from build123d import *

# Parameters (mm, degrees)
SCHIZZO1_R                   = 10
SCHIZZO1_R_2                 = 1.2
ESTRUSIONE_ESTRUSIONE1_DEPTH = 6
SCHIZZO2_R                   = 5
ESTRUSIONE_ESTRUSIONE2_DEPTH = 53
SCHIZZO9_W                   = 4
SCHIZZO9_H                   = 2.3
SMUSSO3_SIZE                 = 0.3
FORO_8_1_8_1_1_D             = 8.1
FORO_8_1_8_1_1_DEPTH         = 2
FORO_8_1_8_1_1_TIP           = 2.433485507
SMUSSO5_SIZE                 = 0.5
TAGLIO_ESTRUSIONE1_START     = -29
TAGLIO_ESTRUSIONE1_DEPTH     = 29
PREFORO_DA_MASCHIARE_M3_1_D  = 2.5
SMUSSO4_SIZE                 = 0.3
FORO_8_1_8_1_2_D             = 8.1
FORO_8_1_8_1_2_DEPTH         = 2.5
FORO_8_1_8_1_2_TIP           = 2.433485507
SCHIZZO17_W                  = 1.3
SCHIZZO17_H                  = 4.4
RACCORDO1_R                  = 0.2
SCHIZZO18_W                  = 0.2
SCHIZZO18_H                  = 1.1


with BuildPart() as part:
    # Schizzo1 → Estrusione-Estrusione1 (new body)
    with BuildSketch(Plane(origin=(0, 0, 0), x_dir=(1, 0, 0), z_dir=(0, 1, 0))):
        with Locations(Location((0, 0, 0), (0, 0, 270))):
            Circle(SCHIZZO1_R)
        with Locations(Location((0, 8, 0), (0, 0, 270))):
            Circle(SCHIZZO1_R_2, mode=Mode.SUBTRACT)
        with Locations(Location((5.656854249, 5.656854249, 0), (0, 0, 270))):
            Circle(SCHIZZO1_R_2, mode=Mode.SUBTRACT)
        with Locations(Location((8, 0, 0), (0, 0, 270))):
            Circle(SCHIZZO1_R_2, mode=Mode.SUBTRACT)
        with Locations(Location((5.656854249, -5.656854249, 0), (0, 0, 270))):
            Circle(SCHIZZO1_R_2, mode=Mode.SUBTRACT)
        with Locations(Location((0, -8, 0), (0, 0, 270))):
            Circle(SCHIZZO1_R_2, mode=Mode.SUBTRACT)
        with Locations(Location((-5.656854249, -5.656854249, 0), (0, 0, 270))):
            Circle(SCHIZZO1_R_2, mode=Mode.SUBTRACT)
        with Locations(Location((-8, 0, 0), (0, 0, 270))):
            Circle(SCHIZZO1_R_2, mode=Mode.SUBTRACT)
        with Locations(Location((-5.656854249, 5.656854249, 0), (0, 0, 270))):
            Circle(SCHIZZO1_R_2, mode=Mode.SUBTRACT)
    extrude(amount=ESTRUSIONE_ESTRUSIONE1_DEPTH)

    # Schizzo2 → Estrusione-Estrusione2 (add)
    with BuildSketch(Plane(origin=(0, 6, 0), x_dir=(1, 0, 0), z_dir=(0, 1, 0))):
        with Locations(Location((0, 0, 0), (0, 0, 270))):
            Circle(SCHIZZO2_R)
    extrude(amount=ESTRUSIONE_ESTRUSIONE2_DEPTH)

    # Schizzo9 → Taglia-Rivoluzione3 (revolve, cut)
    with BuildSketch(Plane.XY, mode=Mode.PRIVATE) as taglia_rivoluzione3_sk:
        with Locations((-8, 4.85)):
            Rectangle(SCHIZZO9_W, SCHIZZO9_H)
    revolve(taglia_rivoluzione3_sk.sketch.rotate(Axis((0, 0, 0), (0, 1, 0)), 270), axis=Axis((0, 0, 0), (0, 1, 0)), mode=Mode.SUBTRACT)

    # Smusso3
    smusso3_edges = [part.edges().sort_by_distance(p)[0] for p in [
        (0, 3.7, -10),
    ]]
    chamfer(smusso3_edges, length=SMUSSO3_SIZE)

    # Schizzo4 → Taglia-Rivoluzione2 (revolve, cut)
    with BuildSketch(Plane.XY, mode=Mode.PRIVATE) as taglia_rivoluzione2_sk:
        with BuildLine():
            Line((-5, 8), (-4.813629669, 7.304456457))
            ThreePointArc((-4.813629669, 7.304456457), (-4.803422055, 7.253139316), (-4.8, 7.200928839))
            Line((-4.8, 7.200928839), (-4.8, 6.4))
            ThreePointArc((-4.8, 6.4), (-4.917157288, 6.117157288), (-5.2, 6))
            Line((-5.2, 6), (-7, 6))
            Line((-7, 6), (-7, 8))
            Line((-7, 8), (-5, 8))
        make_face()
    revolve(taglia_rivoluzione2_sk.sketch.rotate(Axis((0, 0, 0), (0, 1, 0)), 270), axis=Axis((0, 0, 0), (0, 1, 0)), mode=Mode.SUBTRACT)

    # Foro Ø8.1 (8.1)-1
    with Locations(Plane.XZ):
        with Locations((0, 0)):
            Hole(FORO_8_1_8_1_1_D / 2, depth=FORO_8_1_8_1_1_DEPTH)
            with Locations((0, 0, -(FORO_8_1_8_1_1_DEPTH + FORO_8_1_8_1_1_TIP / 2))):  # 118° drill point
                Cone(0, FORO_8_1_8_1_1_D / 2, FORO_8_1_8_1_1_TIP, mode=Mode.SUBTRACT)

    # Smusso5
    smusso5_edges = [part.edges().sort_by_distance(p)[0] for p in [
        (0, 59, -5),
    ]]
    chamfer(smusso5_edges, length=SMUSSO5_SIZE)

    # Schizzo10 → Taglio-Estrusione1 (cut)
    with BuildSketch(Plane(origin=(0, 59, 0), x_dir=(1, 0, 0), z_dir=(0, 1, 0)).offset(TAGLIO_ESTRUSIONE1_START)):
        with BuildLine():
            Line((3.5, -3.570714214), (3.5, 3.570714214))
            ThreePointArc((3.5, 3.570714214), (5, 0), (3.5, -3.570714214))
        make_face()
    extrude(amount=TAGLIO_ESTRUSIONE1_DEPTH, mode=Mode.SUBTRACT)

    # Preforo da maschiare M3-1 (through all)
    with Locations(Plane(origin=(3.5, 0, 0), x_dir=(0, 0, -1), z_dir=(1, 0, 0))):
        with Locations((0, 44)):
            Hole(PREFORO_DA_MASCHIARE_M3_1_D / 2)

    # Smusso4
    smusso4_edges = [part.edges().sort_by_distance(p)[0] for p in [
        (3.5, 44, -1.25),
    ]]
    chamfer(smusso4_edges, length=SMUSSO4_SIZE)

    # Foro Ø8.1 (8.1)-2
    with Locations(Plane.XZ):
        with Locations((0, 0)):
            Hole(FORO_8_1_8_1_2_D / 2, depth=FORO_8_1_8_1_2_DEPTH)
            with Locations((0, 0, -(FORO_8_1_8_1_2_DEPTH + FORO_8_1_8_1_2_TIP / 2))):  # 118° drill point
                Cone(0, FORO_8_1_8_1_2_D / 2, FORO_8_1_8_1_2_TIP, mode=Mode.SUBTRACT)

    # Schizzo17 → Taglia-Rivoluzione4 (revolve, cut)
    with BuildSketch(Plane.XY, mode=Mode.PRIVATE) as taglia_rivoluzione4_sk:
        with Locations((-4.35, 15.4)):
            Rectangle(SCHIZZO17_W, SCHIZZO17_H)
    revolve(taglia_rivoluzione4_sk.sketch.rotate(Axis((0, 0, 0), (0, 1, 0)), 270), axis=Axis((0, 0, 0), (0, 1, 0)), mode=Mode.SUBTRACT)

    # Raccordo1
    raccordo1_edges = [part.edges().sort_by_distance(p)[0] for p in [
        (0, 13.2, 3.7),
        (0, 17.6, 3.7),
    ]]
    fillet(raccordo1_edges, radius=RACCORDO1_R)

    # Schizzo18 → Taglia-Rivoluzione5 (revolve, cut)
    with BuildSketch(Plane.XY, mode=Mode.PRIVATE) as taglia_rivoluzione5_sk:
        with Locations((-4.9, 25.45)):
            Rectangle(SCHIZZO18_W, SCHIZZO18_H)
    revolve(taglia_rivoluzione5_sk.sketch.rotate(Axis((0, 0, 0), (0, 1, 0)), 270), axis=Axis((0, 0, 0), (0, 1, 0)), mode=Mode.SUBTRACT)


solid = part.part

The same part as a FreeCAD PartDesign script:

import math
import FreeCAD as App
import Part
import Sketcher
from FreeCAD import Vector
Q = App.Units.Quantity


def edges_at(feature, points):
    """Names of the edges that pass closest to the given points."""
    edges = feature.Shape.Edges
    near = lambda p: min(range(len(edges)), key=lambda i: edges[i].distToShape(Part.Vertex(*p))[0])
    return sorted({f"Edge{near(p) + 1}" for p in points})

doc = App.newDocument("Part")
body = doc.addObject("PartDesign::Body", "Body")

sketch1 = doc.addObject("Sketcher::SketchObject", "Sketch")
body.addObject(sketch1)
sketch1.AttachmentSupport = (doc.XZ_Plane, [""])
sketch1.MapMode = "FlatFace"
sketch1.addGeometry([
    Part.Circle(Vector(0, 0, 0), Vector(0, 0, 1), 10),
    Part.Circle(Vector(-5.7, -5.7, 0), Vector(0, 0, 1), 1.2),
    Part.Circle(Vector(0, -8, 0), Vector(0, 0, 1), 1.2),
    Part.Circle(Vector(-8, 0, 0), Vector(0, 0, 1), 1.2),
    Part.Circle(Vector(-5.7, 5.7, 0), Vector(0, 0, 1), 1.2),
    Part.Circle(Vector(5.7, -5.7, 0), Vector(0, 0, 1), 1.2),
    Part.Circle(Vector(8, 0, 0), Vector(0, 0, 1), 1.2),
    Part.Circle(Vector(0, 8, 0), Vector(0, 0, 1), 1.2),
    Part.Circle(Vector(5.7, 5.7, 0), Vector(0, 0, 1), 1.2),
], False)
sketch1.addConstraint([
    Sketcher.Constraint("Coincident", 0, 3, -1, 1),
    Sketcher.Constraint("Equal", 1, 2),
    Sketcher.Constraint("Equal", 2, 3),
    Sketcher.Constraint("Equal", 3, 4),
    Sketcher.Constraint("Equal", 4, 5),
    Sketcher.Constraint("Equal", 5, 6),
    Sketcher.Constraint("Equal", 6, 7),
    Sketcher.Constraint("Equal", 7, 8),
    Sketcher.Constraint("Symmetric", 4, 3, 5, 3, -1, 1),
    Sketcher.Constraint("Symmetric", 3, 3, 6, 3, -1, 1),
    Sketcher.Constraint("Symmetric", 2, 3, 7, 3, -1, 1),
    Sketcher.Constraint("Symmetric", 1, 3, 8, 3, -1, 1),
    Sketcher.Constraint("Symmetric", 1, 3, 5, 3, -2),
    Sketcher.Constraint("PointOnObject", 2, 3, -2),
    Sketcher.Constraint("PointOnObject", 3, 3, -1),
    Sketcher.Constraint("Diameter", 0, 20.0),
    Sketcher.Constraint("Diameter", 1, 2.4),
    Sketcher.Constraint("DistanceY", 2, 3, -1, 1, 8.0),
    Sketcher.Constraint("DistanceX", 3, 3, -1, 1, 8.0),
    Sketcher.Constraint("DistanceY", 1, 3, 4, 3, 11.313708),
    Sketcher.Constraint("DistanceX", 1, 3, 5, 3, 11.313708),
])
pad1 = doc.addObject("PartDesign::Pad", "Pad")
body.addObject(pad1)
pad1.Profile = sketch1
pad1.Length = 6
pad1.Reversed = True

sketch2 = doc.addObject("Sketcher::SketchObject", "Sketch001")
body.addObject(sketch2)
sketch2.AttachmentSupport = (doc.XZ_Plane, [""])
sketch2.MapMode = "FlatFace"
sketch2.AttachmentOffset = App.Placement(Vector(0, 0, -6), App.Rotation())
sketch2.addGeometry(Part.Circle(Vector(0, 0, 0), Vector(0, 0, 1), 5), False)
sketch2.addConstraint([
    Sketcher.Constraint("Coincident", 0, 3, -1, 1),
    Sketcher.Constraint("Diameter", 0, 10.0),
])
pad2 = doc.addObject("PartDesign::Pad", "Pad001")
body.addObject(pad2)
pad2.Profile = sketch2
pad2.Length = 53
pad2.Reversed = True

sketch3 = doc.addObject("Sketcher::SketchObject", "Sketch002")
body.addObject(sketch3)
sketch3.AttachmentSupport = (doc.XY_Plane, [""])
sketch3.MapMode = "FlatFace"
sketch3.addGeometry([
    Part.LineSegment(Vector(-10, 6, 0), Vector(-10, 3.7, 0)),
    Part.LineSegment(Vector(-10, 3.7, 0), Vector(-6, 3.7, 0)),
    Part.LineSegment(Vector(-6, 3.7, 0), Vector(-6, 6, 0)),
    Part.LineSegment(Vector(-6, 6, 0), Vector(-10, 6, 0)),
], False)
sketch3.addConstraint([
    Sketcher.Constraint("Coincident", 0, 2, 1, 1),
    Sketcher.Constraint("Coincident", 1, 2, 2, 1),
    Sketcher.Constraint("Coincident", 2, 2, 3, 1),
    Sketcher.Constraint("Coincident", 3, 2, 0, 1),
    Sketcher.Constraint("Vertical", 0),
    Sketcher.Constraint("Horizontal", 1),
    Sketcher.Constraint("Vertical", 2),
    Sketcher.Constraint("Horizontal", 3),
    Sketcher.Constraint("DistanceX", 1, 1, 1, 2, 4.0),
    Sketcher.Constraint("DistanceY", 0, 2, 0, 1, 2.3),
    Sketcher.Constraint("DistanceX", 0, 2, -1, 1, 10.0),
    Sketcher.Constraint("DistanceY", -1, 1, 2, 2, 6.0),
])
groove = doc.addObject("PartDesign::Groove", "Groove")
body.addObject(groove)
groove.Profile = sketch3
groove.ReferenceAxis = (sketch3, ["V_Axis"])
groove.Angle = 360
doc.recompute()

chamfer = doc.addObject("PartDesign::Chamfer", "Chamfer")
body.addObject(chamfer)
chamfer.Base = (groove, edges_at(groove, [(0, 3.7, -10)]))
chamfer.Size = 0.3

sketch4 = doc.addObject("Sketcher::SketchObject", "Sketch003")
body.addObject(sketch4)
sketch4.AttachmentSupport = (doc.XY_Plane, [""])
sketch4.MapMode = "FlatFace"
sketch4.addGeometry([
    Part.LineSegment(Vector(-4.81, 7.3, 0), Vector(-5, 8, 0)),
    Part.LineSegment(Vector(-5, 8, 0), Vector(-7, 8, 0)),
    Part.LineSegment(Vector(-7, 8, 0), Vector(-7, 6, 0)),
    Part.LineSegment(Vector(-7, 6, 0), Vector(-5.2, 6, 0)),
    Part.ArcOfCircle(Part.Circle(Vector(-5.2, 6.4, 0), Vector(0, 0, 1), 0.4), math.radians(-90), math.radians(0)),
    Part.LineSegment(Vector(-4.8, 6.4, 0), Vector(-4.8, 7.2, 0)),
    Part.ArcOfCircle(Part.Circle(Vector(-5.2, 7.2, 0), Vector(0, 0, 1), 0.4), math.radians(0), math.radians(15)),
], False)
sketch4.addConstraint([
    Sketcher.Constraint("Coincident", 0, 2, 1, 1),
    Sketcher.Constraint("Coincident", 1, 2, 2, 1),
    Sketcher.Constraint("Coincident", 2, 2, 3, 1),
    Sketcher.Constraint("Tangent", 3, 2, 4, 1),
    Sketcher.Constraint("Tangent", 4, 2, 5, 1),
    Sketcher.Constraint("Tangent", 5, 2, 6, 1),
    Sketcher.Constraint("Tangent", 6, 2, 0, 1),
    Sketcher.Constraint("Horizontal", 1),
    Sketcher.Constraint("Vertical", 2),
    Sketcher.Constraint("Horizontal", 3),
    Sketcher.Constraint("Vertical", 5),
    Sketcher.Constraint("Equal", 4, 6),
    Sketcher.Constraint("Equal", 1, 2),
    Sketcher.Constraint("Radius", 4, 0.4),
    Sketcher.Constraint("DistanceX", 1, 2, 1, 1, 2.0),
    Sketcher.Constraint("Angle", 0, Q("105 deg")),
    Sketcher.Constraint("DistanceX", 3, 1, 3, 2, 1.8),
    Sketcher.Constraint("DistanceX", 0, 2, -1, 1, 5.0),
    Sketcher.Constraint("DistanceY", -1, 1, 0, 2, 8.0),
])
groove2 = doc.addObject("PartDesign::Groove", "Groove001")
body.addObject(groove2)
groove2.Profile = sketch4
groove2.ReferenceAxis = (sketch4, ["V_Axis"])
groove2.Angle = 360

sketch5 = doc.addObject("Sketcher::SketchObject", "Sketch004")
body.addObject(sketch5)
sketch5.AttachmentSupport = (doc.XZ_Plane, [""])
sketch5.MapMode = "FlatFace"
sketch5.addGeometry(Part.Circle(Vector(0, 0, 0), Vector(0, 0, 1), 4), False)
sketch5.addConstraint([
    Sketcher.Constraint("Coincident", 0, 3, -1, 1),
    Sketcher.Constraint("Diameter", 0, 8.1),
])
doc.recompute()
hole = doc.addObject("PartDesign::Hole", "Hole")
body.addObject(hole)
hole.Profile = sketch5
hole.ThreadType = "None"
hole.Diameter = 8.1
hole.DepthType = "Dimension"
hole.Depth = 2
hole.DrillPoint = "Angled"
hole.DrillPointAngle = 118
doc.recompute()

chamfer2 = doc.addObject("PartDesign::Chamfer", "Chamfer001")
body.addObject(chamfer2)
chamfer2.Base = (hole, edges_at(hole, [(0, 59, -5)]))
chamfer2.Size = 0.5

sketch6 = doc.addObject("Sketcher::SketchObject", "Sketch005")
body.addObject(sketch6)
sketch6.AttachmentSupport = (doc.XZ_Plane, [""])
sketch6.MapMode = "FlatFace"
sketch6.AttachmentOffset = App.Placement(Vector(0, 0, -30), App.Rotation())
sketch6.addGeometry([
    Part.LineSegment(Vector(3.5, -3.6, 0), Vector(3.5, 3.6, 0)),
    Part.ArcOfCircle(Part.Circle(Vector(0, 0, 0), Vector(0, 0, 1), 5), math.radians(-46), math.radians(46)),
], False)
sketch6.addConstraint([
    Sketcher.Constraint("Coincident", 0, 1, 1, 1),
    Sketcher.Constraint("Coincident", 1, 2, 0, 2),
    Sketcher.Constraint("Vertical", 0),
    Sketcher.Constraint("Coincident", 1, 3, -1, 1),
    Sketcher.Constraint("Radius", 1, 5.0),
    Sketcher.Constraint("DistanceX", -1, 1, 0, 1, 3.5),
])
pocket1 = doc.addObject("PartDesign::Pocket", "Pocket")
body.addObject(pocket1)
pocket1.Profile = sketch6
pocket1.Length = 29

sketch7 = doc.addObject("Sketcher::SketchObject", "Sketch006")
body.addObject(sketch7)
sketch7.AttachmentSupport = (doc.YZ_Plane, [""])
sketch7.MapMode = "FlatFace"
sketch7.AttachmentOffset = App.Placement(Vector(0, 0, 3.5), App.Rotation())
sketch7.addGeometry(Part.Circle(Vector(44, 0, 0), Vector(0, 0, 1), 1.2), False)
sketch7.addConstraint([
    Sketcher.Constraint("PointOnObject", 0, 3, -1),
    Sketcher.Constraint("Diameter", 0, 2.5),
    Sketcher.Constraint("DistanceX", -1, 1, 0, 3, 44.0),
])
doc.recompute()
hole2 = doc.addObject("PartDesign::Hole", "Hole001")
body.addObject(hole2)
hole2.Profile = sketch7
hole2.ThreadType = "None"
hole2.Diameter = 2.5
hole2.DepthType = "ThroughAll"
doc.recompute()

chamfer3 = doc.addObject("PartDesign::Chamfer", "Chamfer002")
body.addObject(chamfer3)
chamfer3.Base = (hole2, edges_at(hole2, [(3.5, 44, -1.25)]))
chamfer3.Size = 0.3

sketch8 = doc.addObject("Sketcher::SketchObject", "Sketch007")
body.addObject(sketch8)
sketch8.AttachmentSupport = (doc.XZ_Plane, [""])
sketch8.MapMode = "FlatFace"
sketch8.addGeometry(Part.Circle(Vector(0, 0, 0), Vector(0, 0, 1), 4), False)
sketch8.addConstraint([
    Sketcher.Constraint("Coincident", 0, 3, -1, 1),
    Sketcher.Constraint("Diameter", 0, 8.1),
])
doc.recompute()
hole3 = doc.addObject("PartDesign::Hole", "Hole002")
body.addObject(hole3)
hole3.Profile = sketch8
hole3.ThreadType = "None"
hole3.Diameter = 8.1
hole3.DepthType = "Dimension"
hole3.Depth = 2.5
hole3.DrillPoint = "Angled"
hole3.DrillPointAngle = 118

sketch9 = doc.addObject("Sketcher::SketchObject", "Sketch008")
body.addObject(sketch9)
sketch9.AttachmentSupport = (doc.XY_Plane, [""])
sketch9.MapMode = "FlatFace"
sketch9.addGeometry([
    Part.LineSegment(Vector(-5, 17.6, 0), Vector(-5, 13.2, 0)),
    Part.LineSegment(Vector(-5, 13.2, 0), Vector(-3.7, 13.2, 0)),
    Part.LineSegment(Vector(-3.7, 13.2, 0), Vector(-3.7, 17.6, 0)),
    Part.LineSegment(Vector(-3.7, 17.6, 0), Vector(-5, 17.6, 0)),
], False)
sketch9.addConstraint([
    Sketcher.Constraint("Coincident", 0, 2, 1, 1),
    Sketcher.Constraint("Coincident", 1, 2, 2, 1),
    Sketcher.Constraint("Coincident", 2, 2, 3, 1),
    Sketcher.Constraint("Coincident", 3, 2, 0, 1),
    Sketcher.Constraint("Vertical", 0),
    Sketcher.Constraint("Horizontal", 1),
    Sketcher.Constraint("Vertical", 2),
    Sketcher.Constraint("Horizontal", 3),
    Sketcher.Constraint("DistanceX", 1, 1, 1, 2, 1.3),
    Sketcher.Constraint("DistanceY", 0, 2, 0, 1, 4.4),
    Sketcher.Constraint("DistanceX", 0, 2, -1, 1, 5.0),
    Sketcher.Constraint("DistanceY", -1, 1, 0, 2, 13.2),
])
groove3 = doc.addObject("PartDesign::Groove", "Groove002")
body.addObject(groove3)
groove3.Profile = sketch9
groove3.ReferenceAxis = (sketch9, ["V_Axis"])
groove3.Angle = 360
doc.recompute()

fillet = doc.addObject("PartDesign::Fillet", "Fillet")
body.addObject(fillet)
fillet.Base = (groove3, edges_at(groove3, [(0, 13.2, 3.7), (0, 17.6, 3.7)]))
fillet.Radius = 0.2

sketch10 = doc.addObject("Sketcher::SketchObject", "Sketch009")
body.addObject(sketch10)
sketch10.AttachmentSupport = (doc.XY_Plane, [""])
sketch10.MapMode = "FlatFace"
sketch10.addGeometry([
    Part.LineSegment(Vector(-5, 26, 0), Vector(-5, 24.9, 0)),
    Part.LineSegment(Vector(-5, 24.9, 0), Vector(-4.8, 24.9, 0)),
    Part.LineSegment(Vector(-4.8, 24.9, 0), Vector(-4.8, 26, 0)),
    Part.LineSegment(Vector(-4.8, 26, 0), Vector(-5, 26, 0)),
], False)
sketch10.addConstraint([
    Sketcher.Constraint("Coincident", 0, 2, 1, 1),
    Sketcher.Constraint("Coincident", 1, 2, 2, 1),
    Sketcher.Constraint("Coincident", 2, 2, 3, 1),
    Sketcher.Constraint("Coincident", 3, 2, 0, 1),
    Sketcher.Constraint("Vertical", 0),
    Sketcher.Constraint("Horizontal", 1),
    Sketcher.Constraint("Vertical", 2),
    Sketcher.Constraint("Horizontal", 3),
    Sketcher.Constraint("DistanceX", 1, 1, 1, 2, 0.2),
    Sketcher.Constraint("DistanceY", 0, 2, 0, 1, 1.1),
    Sketcher.Constraint("DistanceX", 0, 2, -1, 1, 5.0),
    Sketcher.Constraint("DistanceY", -1, 1, 2, 2, 26.0),
])
groove4 = doc.addObject("PartDesign::Groove", "Groove003")
body.addObject(groove4)
groove4.Profile = sketch10
groove4.ReferenceAxis = (sketch10, ["V_Axis"])
groove4.Angle = 360

doc.recompute()
